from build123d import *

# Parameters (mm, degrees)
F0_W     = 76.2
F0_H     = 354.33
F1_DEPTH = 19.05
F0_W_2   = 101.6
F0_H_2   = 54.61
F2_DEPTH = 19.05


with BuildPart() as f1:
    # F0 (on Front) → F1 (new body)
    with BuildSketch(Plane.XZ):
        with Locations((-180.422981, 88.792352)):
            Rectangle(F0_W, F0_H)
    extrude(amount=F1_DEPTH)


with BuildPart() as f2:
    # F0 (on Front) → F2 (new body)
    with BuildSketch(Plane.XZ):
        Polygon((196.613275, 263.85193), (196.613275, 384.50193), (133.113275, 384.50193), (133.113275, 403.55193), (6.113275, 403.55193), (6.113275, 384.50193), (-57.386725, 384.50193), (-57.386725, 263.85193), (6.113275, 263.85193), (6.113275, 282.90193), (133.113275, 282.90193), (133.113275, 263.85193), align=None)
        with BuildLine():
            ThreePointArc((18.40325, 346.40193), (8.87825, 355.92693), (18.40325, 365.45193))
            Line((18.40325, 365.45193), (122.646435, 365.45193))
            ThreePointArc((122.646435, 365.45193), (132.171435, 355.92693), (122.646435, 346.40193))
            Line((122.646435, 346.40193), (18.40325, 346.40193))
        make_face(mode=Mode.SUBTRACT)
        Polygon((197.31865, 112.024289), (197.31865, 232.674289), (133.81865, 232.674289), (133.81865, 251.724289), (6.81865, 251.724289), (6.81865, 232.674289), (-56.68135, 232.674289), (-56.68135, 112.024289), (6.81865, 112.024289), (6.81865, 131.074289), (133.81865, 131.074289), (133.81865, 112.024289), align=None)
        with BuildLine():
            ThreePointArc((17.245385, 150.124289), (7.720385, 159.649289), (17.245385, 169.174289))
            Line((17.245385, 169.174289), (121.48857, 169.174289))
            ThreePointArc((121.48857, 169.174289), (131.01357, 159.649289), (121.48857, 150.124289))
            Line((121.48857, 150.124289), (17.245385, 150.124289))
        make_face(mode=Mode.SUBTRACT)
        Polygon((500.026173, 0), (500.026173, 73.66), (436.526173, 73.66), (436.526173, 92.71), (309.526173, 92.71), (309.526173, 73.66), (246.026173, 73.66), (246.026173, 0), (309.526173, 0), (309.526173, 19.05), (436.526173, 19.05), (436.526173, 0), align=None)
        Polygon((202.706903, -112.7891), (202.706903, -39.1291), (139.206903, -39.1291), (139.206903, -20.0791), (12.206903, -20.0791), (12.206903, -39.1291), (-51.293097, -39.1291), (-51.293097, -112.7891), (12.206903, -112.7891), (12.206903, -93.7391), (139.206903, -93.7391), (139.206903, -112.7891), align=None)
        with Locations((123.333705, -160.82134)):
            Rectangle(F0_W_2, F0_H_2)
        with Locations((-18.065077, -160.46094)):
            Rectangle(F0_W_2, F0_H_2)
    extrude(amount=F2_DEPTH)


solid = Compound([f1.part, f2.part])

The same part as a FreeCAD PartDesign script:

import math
import FreeCAD as App
import Part
import Sketcher
Q = App.Units.Quantity

doc = App.newDocument("Part")
body = doc.addObject("PartDesign::Body", "Body")

# Sketch on XZ plane
sketch1 = body.newObject("Sketcher::SketchObject", "Sketch")
sketch1.AttachmentSupport = (doc.getObject("XZ_Plane"), [""])
sketch1.MapMode = "FlatFace"
sketch1.addGeometry(Part.LineSegment(App.Vector(-219, 266, 0), App.Vector(-219, -88, 0)), False)
sketch1.addGeometry(Part.LineSegment(App.Vector(-219, -88, 0), App.Vector(-142, -88, 0)), False)
sketch1.addGeometry(Part.LineSegment(App.Vector(-142, -88, 0), App.Vector(-142, 266, 0)), False)
sketch1.addGeometry(Part.LineSegment(App.Vector(-142, 266, 0), App.Vector(-219, 266, 0)), False)
sketch1.addConstraint(Sketcher.Constraint("Coincident", 0, 2, 1, 1))
sketch1.addConstraint(Sketcher.Constraint("Coincident", 1, 2, 2, 1))
sketch1.addConstraint(Sketcher.Constraint("Coincident", 2, 2, 3, 1))
sketch1.addConstraint(Sketcher.Constraint("Coincident", 3, 2, 0, 1))
sketch1.addConstraint(Sketcher.Constraint("Vertical", 0))
sketch1.addConstraint(Sketcher.Constraint("Horizontal", 1))
sketch1.addConstraint(Sketcher.Constraint("Vertical", 2))
sketch1.addConstraint(Sketcher.Constraint("Horizontal", 3))
sketch1.addConstraint(Sketcher.Constraint("DistanceX", 1, 1, 1, 2, Q("3 in")))
sketch1.addConstraint(Sketcher.Constraint("DistanceY", 0, 2, 0, 1, Q("13.95 in")))
sketch1.addConstraint(Sketcher.Constraint("DistanceX", 0, 2, -1, 1, 218.522981))
sketch1.addConstraint(Sketcher.Constraint("DistanceY", 0, 2, -1, 1, 88.372648))
pad1 = body.newObject("PartDesign::Pad", "Pad")
pad1.Profile = sketch1
pad1.Length = Q("0.75 in")
body2 = doc.addObject("PartDesign::Body", "Body001")
body2.AllowCompound = True

# Sketch on XZ plane
sketch2 = body2.newObject("Sketcher::SketchObject", "Sketch001")
sketch2.AttachmentSupport = (doc.getObject("XZ_Plane001"), [""])
sketch2.MapMode = "FlatFace"
sketch2.addGeometry(Part.LineSegment(App.Vector(197, 264, 0), App.Vector(197, 385, 0)), False)
sketch2.addGeometry(Part.LineSegment(App.Vector(197, 385, 0), App.Vector(133, 385, 0)), False)
sketch2.addGeometry(Part.LineSegment(App.Vector(133, 385, 0), App.Vector(133, 404, 0)), False)
sketch2.addGeometry(Part.LineSegment(App.Vector(133, 404, 0), App.Vector(6, 404, 0)), False)
sketch2.addGeometry(Part.LineSegment(App.Vector(6, 404, 0), App.Vector(6, 385, 0)), False)
sketch2.addGeometry(Part.LineSegment(App.Vector(6, 385, 0), App.Vector(-57, 385, 0)), False)
sketch2.addGeometry(Part.LineSegment(App.Vector(-57, 385, 0), App.Vector(-57, 264, 0)), False)
sketch2.addGeometry(Part.LineSegment(App.Vector(-57, 264, 0), App.Vector(6, 264, 0)), False)
sketch2.addGeometry(Part.LineSegment(App.Vector(6, 264, 0), App.Vector(6, 283, 0)), False)
sketch2.addGeometry(Part.LineSegment(App.Vector(6, 283, 0), App.Vector(133, 283, 0)), False)
sketch2.addGeometry(Part.LineSegment(App.Vector(133, 283, 0), App.Vector(133, 264, 0)), False)
sketch2.addGeometry(Part.LineSegment(App.Vector(133, 264, 0), App.Vector(197, 264, 0)), False)
sketch2.addGeometry(Part.LineSegment(App.Vector(123, 346, 0), App.Vector(18, 346, 0)), False)
sketch2.addGeometry(Part.ArcOfCircle(Part.Circle(App.Vector(18, 356, 0), App.Vector(0, 0, 1), 10), math.radians(90), math.radians(270)), False)
sketch2.addGeometry(Part.LineSegment(App.Vector(18, 365, 0), App.Vector(123, 365, 0)), False)
sketch2.addGeometry(Part.ArcOfCircle(Part.Circle(App.Vector(123, 356, 0), App.Vector(0, 0, 1), 10), math.radians(-90), math.radians(90)), False)
sketch2.addGeometry(Part.LineSegment(App.Vector(197, 112, 0), App.Vector(197, 233, 0)), False)
sketch2.addGeometry(Part.LineSegment(App.Vector(197, 233, 0), App.Vector(134, 233, 0)), False)
sketch2.addGeometry(Part.LineSegment(App.Vector(134, 233, 0), App.Vector(134, 252, 0)), False)
sketch2.addGeometry(Part.LineSegment(App.Vector(134, 252, 0), App.Vector(7, 252, 0)), False)
sketch2.addGeometry(Part.LineSegment(App.Vector(7, 252, 0), App.Vector(7, 233, 0)), False)
sketch2.addGeometry(Part.LineSegment(App.Vector(7, 233, 0), App.Vector(-57, 233, 0)), False)
sketch2.addGeometry(Part.LineSegment(App.Vector(-57, 233, 0), App.Vector(-57, 112, 0)), False)
sketch2.addGeometry(Part.LineSegment(App.Vector(-57, 112, 0), App.Vector(7, 112, 0)), False)
sketch2.addGeometry(Part.LineSegment(App.Vector(7, 112, 0), App.Vector(7, 131, 0)), False)
sketch2.addGeometry(Part.LineSegment(App.Vector(7, 131, 0), App.Vector(134, 131, 0)), False)
sketch2.addGeometry(Part.LineSegment(App.Vector(134, 131, 0), App.Vector(134, 112, 0)), False)
sketch2.addGeometry(Part.LineSegment(App.Vector(134, 112, 0), App.Vector(197, 112, 0)), False)
sketch2.addGeometry(Part.LineSegment(App.Vector(121, 150, 0), App.Vector(17, 150, 0)), False)
sketch2.addGeometry(Part.ArcOfCircle(Part.Circle(App.Vector(17, 160, 0), App.Vector(0, 0, 1), 10), math.radians(90), math.radians(270)), False)
sketch2.addGeometry(Part.LineSegment(App.Vector(17, 169, 0), App.Vector(121, 169, 0)), False)
sketch2.addGeometry(Part.ArcOfCircle(Part.Circle(App.Vector(121, 160, 0), App.Vector(0, 0, 1), 10), math.radians(-90), math.radians(90)), False)
sketch2.addGeometry(Part.LineSegment(App.Vector(500, 0, 0), App.Vector(500, 74, 0)), False)
sketch2.addGeometry(Part.LineSegment(App.Vector(500, 74, 0), App.Vector(437, 74, 0)), False)
sketch2.addGeometry(Part.LineSegment(App.Vector(437, 74, 0), App.Vector(437, 93, 0)), False)
sketch2.addGeometry(Part.LineSegment(App.Vector(437, 93, 0), App.Vector(310, 93, 0)), False)
sketch2.addGeometry(Part.LineSegment(App.Vector(310, 93, 0), App.Vector(310, 74, 0)), False)
sketch2.addGeometry(Part.LineSegment(App.Vector(310, 74, 0), App.Vector(246, 74, 0)), False)
sketch2.addGeometry(Part.LineSegment(App.Vector(246, 74, 0), App.Vector(246, 0, 0)), False)
sketch2.addGeometry(Part.LineSegment(App.Vector(246, 0, 0), App.Vector(310, 0, 0)), False)
sketch2.addGeometry(Part.LineSegment(App.Vector(310, 0, 0), App.Vector(310, 19, 0)), False)
sketch2.addGeometry(Part.LineSegment(App.Vector(310, 19, 0), App.Vector(437, 19, 0)), False)
sketch2.addGeometry(Part.LineSegment(App.Vector(437, 19, 0), App.Vector(437, 0, 0)), False)
sketch2.addGeometry(Part.LineSegment(App.Vector(437, 0, 0), App.Vector(500, 0, 0)), False)
sketch2.addGeometry(Part.LineSegment(App.Vector(203, -113, 0), App.Vector(203, -39, 0)), False)
sketch2.addGeometry(Part.LineSegment(App.Vector(203, -39, 0), App.Vector(139, -39, 0)), False)
sketch2.addGeometry(Part.LineSegment(App.Vector(139, -39, 0), App.Vector(139, -20, 0)), False)
sketch2.addGeometry(Part.LineSegment(App.Vector(139, -20, 0), App.Vector(12, -20, 0)), False)
sketch2.addGeometry(Part.LineSegment(App.Vector(12, -20, 0), App.Vector(12, -39, 0)), False)
sketch2.addGeometry(Part.LineSegment(App.Vector(12, -39, 0), App.Vector(-51, -39, 0)), False)
sketch2.addGeometry(Part.LineSegment(App.Vector(-51, -39, 0), App.Vector(-51, -113, 0)), False)
sketch2.addGeometry(Part.LineSegment(App.Vector(-51, -113, 0), App.Vector(12, -113, 0)), False)
sketch2.addGeometry(Part.LineSegment(App.Vector(12, -113, 0), App.Vector(12, -94, 0)), False)
sketch2.addGeometry(Part.LineSegment(App.Vector(12, -94, 0), App.Vector(139, -94, 0)), False)
sketch2.addGeometry(Part.LineSegment(App.Vector(139, -94, 0), App.Vector(139, -113, 0)), False)
sketch2.addGeometry(Part.LineSegment(App.Vector(139, -113, 0), App.Vector(203, -113, 0)), False)
sketch2.addGeometry(Part.LineSegment(App.Vector(73, -134, 0), App.Vector(73, -188, 0)), False)
sketch2.addGeometry(Part.LineSegment(App.Vector(73, -188, 0), App.Vector(174, -188, 0)), False)
sketch2.addGeometry(Part.LineSegment(App.Vector(174, -188, 0), App.Vector(174, -134, 0)), False)
sketch2.addGeometry(Part.LineSegment(App.Vector(174, -134, 0), App.Vector(73, -134, 0)), False)
sketch2.addGeometry(Part.LineSegment(App.Vector(-69, -133, 0), App.Vector(-69, -188, 0)), False)
sketch2.addGeometry(Part.LineSegment(App.Vector(-69, -188, 0), App.Vector(33, -188, 0)), False)
sketch2.addGeometry(Part.LineSegment(App.Vector(33, -188, 0), App.Vector(33, -133, 0)), False)
sketch2.addGeometry(Part.LineSegment(App.Vector(33, -133, 0), App.Vector(-69, -133, 0)), False)
sketch2.addConstraint(Sketcher.Constraint("Coincident", 0, 2, 1, 1))
sketch2.addConstraint(Sketcher.Constraint("Coincident", 1, 2, 2, 1))
sketch2.addConstraint(Sketcher.Constraint("Coincident", 2, 2, 3, 1))
sketch2.addConstraint(Sketcher.Constraint("Coincident", 3, 2, 4, 1))
sketch2.addConstraint(Sketcher.Constraint("Coincident", 4, 2, 5, 1))
sketch2.addConstraint(Sketcher.Constraint("Coincident", 5, 2, 6, 1))
sketch2.addConstraint(Sketcher.Constraint("Coincident", 6, 2, 7, 1))
sketch2.addConstraint(Sketcher.Constraint("Coincident", 7, 2, 8, 1))
sketch2.addConstraint(Sketcher.Constraint("Coincident", 8, 2, 9, 1))
sketch2.addConstraint(Sketcher.Constraint("Coincident", 9, 2, 10, 1))
sketch2.addConstraint(Sketcher.Constraint("Coincident", 10, 2, 11, 1))
sketch2.addConstraint(Sketcher.Constraint("Coincident", 11, 2, 0, 1))
sketch2.addConstraint(Sketcher.Constraint("Tangent", 12, 2, 13, 2))
sketch2.addConstraint(Sketcher.Constraint("Tangent", 13, 1, 14, 1))
sketch2.addConstraint(Sketcher.Constraint("Tangent", 14, 2, 15, 2))
sketch2.addConstraint(Sketcher.Constraint("Tangent", 15, 1, 12, 1))
sketch2.addConstraint(Sketcher.Constraint("Coincident", 16, 2, 17, 1))
sketch2.addConstraint(Sketcher.Constraint("Coincident", 17, 2, 18, 1))
sketch2.addConstraint(Sketcher.Constraint("Coincident", 18, 2, 19, 1))
sketch2.addConstraint(Sketcher.Constraint("Coincident", 19, 2, 20, 1))
sketch2.addConstraint(Sketcher.Constraint("Coincident", 20, 2, 21, 1))
sketch2.addConstraint(Sketcher.Constraint("Coincident", 21, 2, 22, 1))
sketch2.addConstraint(Sketcher.Constraint("Coincident", 22, 2, 23, 1))
sketch2.addConstraint(Sketcher.Constraint("Coincident", 23, 2, 24, 1))
sketch2.addConstraint(Sketcher.Constraint("Coincident", 24, 2, 25, 1))
sketch2.addConstraint(Sketcher.Constraint("Coincident", 25, 2, 26, 1))
sketch2.addConstraint(Sketcher.Constraint("Coincident", 26, 2, 27, 1))
sketch2.addConstraint(Sketcher.Constraint("Coincident", 27, 2, 16, 1))
sketch2.addConstraint(Sketcher.Constraint("Tangent", 28, 2, 29, 2))
sketch2.addConstraint(Sketcher.Constraint("Tangent", 29, 1, 30, 1))
sketch2.addConstraint(Sketcher.Constraint("Tangent", 30, 2, 31, 2))
sketch2.addConstraint(Sketcher.Constraint("Tangent", 31, 1, 28, 1))
sketch2.addConstraint(Sketcher.Constraint("Coincident", 32, 2, 33, 1))
sketch2.addConstraint(Sketcher.Constraint("Coincident", 33, 2, 34, 1))
sketch2.addConstraint(Sketcher.Constraint("Coincident", 34, 2, 35, 1))
sketch2.addConstraint(Sketcher.Constraint("Coincident", 35, 2, 36, 1))
sketch2.addConstraint(Sketcher.Constraint("Coincident", 36, 2, 37, 1))
sketch2.addConstraint(Sketcher.Constraint("Coincident", 37, 2, 38, 1))
sketch2.addConstraint(Sketcher.Constraint("Coincident", 38, 2, 39, 1))
sketch2.addConstraint(Sketcher.Constraint("Coincident", 39, 2, 40, 1))
sketch2.addConstraint(Sketcher.Constraint("Coincident", 40, 2, 41, 1))
sketch2.addConstraint(Sketcher.Constraint("Coincident", 41, 2, 42, 1))
sketch2.addConstraint(Sketcher.Constraint("Coincident", 42, 2, 43, 1))
sketch2.addConstraint(Sketcher.Constraint("Coincident", 43, 2, 32, 1))
sketch2.addConstraint(Sketcher.Constraint("Coincident", 44, 2, 45, 1))
sketch2.addConstraint(Sketcher.Constraint("Coincident", 45, 2, 46, 1))
sketch2.addConstraint(Sketcher.Constraint("Coincident", 46, 2, 47, 1))
sketch2.addConstraint(Sketcher.Constraint("Coincident", 47, 2, 48, 1))
sketch2.addConstraint(Sketcher.Constraint("Coincident", 48, 2, 49, 1))
sketch2.addConstraint(Sketcher.Constraint("Coincident", 49, 2, 50, 1))
sketch2.addConstraint(Sketcher.Constraint("Coincident", 50, 2, 51, 1))
sketch2.addConstraint(Sketcher.Constraint("Coincident", 51, 2, 52, 1))
sketch2.addConstraint(Sketcher.Constraint("Coincident", 52, 2, 53, 1))
sketch2.addConstraint(Sketcher.Constraint("Coincident", 53, 2, 54, 1))
sketch2.addConstraint(Sketcher.Constraint("Coincident", 54, 2, 55, 1))
sketch2.addConstraint(Sketcher.Constraint("Coincident", 55, 2, 44, 1))
sketch2.addConstraint(Sketcher.Constraint("Coincident", 56, 2, 57, 1))
sketch2.addConstraint(Sketcher.Constraint("Coincident", 57, 2, 58, 1))
sketch2.addConstraint(Sketcher.Constraint("Coincident", 58, 2, 59, 1))
sketch2.addConstraint(Sketcher.Constraint("Coincident", 59, 2, 56, 1))
sketch2.addConstraint(Sketcher.Constraint("Coincident", 60, 2, 61, 1))
sketch2.addConstraint(Sketcher.Constraint("Coincident", 61, 2, 62, 1))
sketch2.addConstraint(Sketcher.Constraint("Coincident", 62, 2, 63, 1))
sketch2.addConstraint(Sketcher.Constraint("Coincident", 63, 2, 60, 1))
sketch2.addConstraint(Sketcher.Constraint("Vertical", 0))
sketch2.addConstraint(Sketcher.Constraint("Horizontal", 1))
sketch2.addConstraint(Sketcher.Constraint("Vertical", 2))
sketch2.addConstraint(Sketcher.Constraint("Horizontal", 3))
sketch2.addConstraint(Sketcher.Constraint("Vertical", 4))
sketch2.addConstraint(Sketcher.Constraint("Horizontal", 5))
sketch2.addConstraint(Sketcher.Constraint("Vertical", 6))
sketch2.addConstraint(Sketcher.Constraint("Horizontal", 7))
sketch2.addConstraint(Sketcher.Constraint("Vertical", 8))
sketch2.addConstraint(Sketcher.Constraint("Horizontal", 9))
sketch2.addConstraint(Sketcher.Constraint("Vertical", 10))
sketch2.addConstraint(Sketcher.Constraint("Horizontal", 11))
sketch2.addConstraint(Sketcher.Constraint("Horizontal", 12))
sketch2.addConstraint(Sketcher.Constraint("Horizontal", 14))
sketch2.addConstraint(Sketcher.Constraint("Vertical", 16))
sketch2.addConstraint(Sketcher.Constraint("Horizontal", 17))
sketch2.addConstraint(Sketcher.Constraint("Vertical", 18))
sketch2.addConstraint(Sketcher.Constraint("Horizontal", 19))
sketch2.addConstraint(Sketcher.Constraint("Vertical", 20))
sketch2.addConstraint(Sketcher.Constraint("Horizontal", 21))
sketch2.addConstraint(Sketcher.Constraint("Vertical", 22))
sketch2.addConstraint(Sketcher.Constraint("Horizontal", 23))
sketch2.addConstraint(Sketcher.Constraint("Vertical", 24))
sketch2.addConstraint(Sketcher.Constraint("Horizontal", 25))
sketch2.addConstraint(Sketcher.Constraint("Vertical", 26))
sketch2.addConstraint(Sketcher.Constraint("Horizontal", 27))
sketch2.addConstraint(Sketcher.Constraint("Horizontal", 28))
sketch2.addConstraint(Sketcher.Constraint("Horizontal", 30))
sketch2.addConstraint(Sketcher.Constraint("Vertical", 32))
sketch2.addConstraint(Sketcher.Constraint("Horizontal", 33))
sketch2.addConstraint(Sketcher.Constraint("Vertical", 34))
sketch2.addConstraint(Sketcher.Constraint("Horizontal", 35))
sketch2.addConstraint(Sketcher.Constraint("Vertical", 36))
sketch2.addConstraint(Sketcher.Constraint("Horizontal", 37))
sketch2.addConstraint(Sketcher.Constraint("Vertical", 38))
sketch2.addConstraint(Sketcher.Constraint("Horizontal", 39))
sketch2.addConstraint(Sketcher.Constraint("Vertical", 40))
sketch2.addConstraint(Sketcher.Constraint("Horizontal", 41))
sketch2.addConstraint(Sketcher.Constraint("Vertical", 42))
sketch2.addConstraint(Sketcher.Constraint("Horizontal", 43))
sketch2.addConstraint(Sketcher.Constraint("Vertical", 44))
sketch2.addConstraint(Sketcher.Constraint("Horizontal", 45))
sketch2.addConstraint(Sketcher.Constraint("Vertical", 46))
sketch2.addConstraint(Sketcher.Constraint("Horizontal", 47))
sketch2.addConstraint(Sketcher.Constraint("Vertical", 48))
sketch2.addConstraint(Sketcher.Constraint("Horizontal", 49))
sketch2.addConstraint(Sketcher.Constraint("Vertical", 50))
sketch2.addConstraint(Sketcher.Constraint("Horizontal", 51))
sketch2.addConstraint(Sketcher.Constraint("Vertical", 52))
sketch2.addConstraint(Sketcher.Constraint("Horizontal", 53))
sketch2.addConstraint(Sketcher.Constraint("Vertical", 54))
sketch2.addConstraint(Sketcher.Constraint("Horizontal", 55))
sketch2.addConstraint(Sketcher.Constraint("Vertical", 56))
sketch2.addConstraint(Sketcher.Constraint("Horizontal", 57))
sketch2.addConstraint(Sketcher.Constraint("Vertical", 58))
sketch2.addConstraint(Sketcher.Constraint("Horizontal", 59))
sketch2.addConstraint(Sketcher.Constraint("Vertical", 60))
sketch2.addConstraint(Sketcher.Constraint("Horizontal", 61))
sketch2.addConstraint(Sketcher.Constraint("Vertical", 62))
sketch2.addConstraint(Sketcher.Constraint("Horizontal", 63))
sketch2.addConstraint(Sketcher.Constraint("Equal", 15, 29))
sketch2.addConstraint(Sketcher.Constraint("PointOnObject", 38, 2, -1))
sketch2.addConstraint(Sketcher.Constraint("PointOnObject", 42, 2, -1))
sketch2.addConstraint(Sketcher.Constraint("Horizontal", 1, 2, 4, 2))
sketch2.addConstraint(Sketcher.Constraint("Horizontal", 7, 2, 10, 2))
sketch2.addConstraint(Sketcher.Constraint("Horizontal", 17, 2, 20, 2))
sketch2.addConstraint(Sketcher.Constraint("Horizontal", 23, 2, 26, 2))
sketch2.addConstraint(Sketcher.Constraint("Horizontal", 33, 2, 36, 2))
sketch2.addConstraint(Sketcher.Constraint("Horizontal", 45, 2, 48, 2))
sketch2.addConstraint(Sketcher.Constraint("Horizontal", 51, 2, 54, 2))
sketch2.addConstraint(Sketcher.Constraint("Vertical", 4, 2, 7, 2))
sketch2.addConstraint(Sketcher.Constraint("Vertical", 2, 2, 9, 2))
sketch2.addConstraint(Sketcher.Constraint("Vertical", 20, 2, 23, 2))
sketch2.addConstraint(Sketcher.Constraint("Vertical", 18, 2, 25, 2))
sketch2.addConstraint(Sketcher.Constraint("Vertical", 36, 2, 39, 2))
sketch2.addConstraint(Sketcher.Constraint("Vertical", 34, 2, 41, 2))
sketch2.addConstraint(Sketcher.Constraint("Vertical", 48, 2, 51, 2))
sketch2.addConstraint(Sketcher.Constraint("Vertical", 46, 2, 53, 2))
sketch2.addConstraint(Sketcher.Constraint("Equal", 1, 5))
sketch2.addConstraint(Sketcher.Constraint("Equal", 11, 17))
sketch2.addConstraint(Sketcher.Constraint("Equal", 9, 19))
sketch2.addConstraint(Sketcher.Constraint("Equal", 17, 21))
sketch2.addConstraint(Sketcher.Constraint("Equal", 14, 28))
sketch2.addConstraint(Sketcher.Constraint("Equal", 27, 33))
sketch2.addConstraint(Sketcher.Constraint("Equal", 25, 35))
sketch2.addConstraint(Sketcher.Constraint("Equal", 33, 37))
sketch2.addConstraint(Sketcher.Constraint("Equal", 43, 45))
sketch2.addConstraint(Sketcher.Constraint("Equal", 41, 47))
sketch2.addConstraint(Sketcher.Constraint("Equal", 45, 49))
sketch2.addConstraint(Sketcher.Constraint("Equal", 59, 61))
sketch2.addConstraint(Sketcher.Constraint("Equal", 4, 8))
sketch2.addConstraint(Sketcher.Constraint("Equal", 6, 16))
sketch2.addConstraint(Sketcher.Constraint("Equal", 10, 18))
sketch2.addConstraint(Sketcher.Constraint("Equal", 20, 24))
sketch2.addConstraint(Sketcher.Constraint("Equal", 26, 34))
sketch2.addConstraint(Sketcher.Constraint("Equal", 36, 40))
sketch2.addConstraint(Sketcher.Constraint("Equal", 38, 44))
sketch2.addConstraint(Sketcher.Constraint("Equal", 42, 46))
sketch2.addConstraint(Sketcher.Constraint("Equal", 48, 52))
sketch2.addConstraint(Sketcher.Constraint("Equal", 58, 60))
sketch2.addConstraint(Sketcher.Constraint("DistanceX", 3, 2, 3, 1, Q("5 in")))
sketch2.addConstraint(Sketcher.Constraint("DistanceX", 57, 1, 57, 2, Q("4 in")))
sketch2.addConstraint(Sketcher.Constraint("DistanceX", 1, 2, 1, 1, Q("2.5 in")))
sketch2.addConstraint(Sketcher.Constraint("DistanceY", 32, 1, 32, 2, Q("2.9 in")))
sketch2.addConstraint(Sketcher.Constraint("Radius", 13, Q("0.375 in")))
sketch2.addConstraint(Sketcher.Constraint("DistanceY", 0, 1, 0, 2, Q("4.75 in")))
sketch2.addConstraint(Sketcher.Constraint("DistanceY", 2, 1, 2, 2, Q("0.75 in")))
sketch2.addConstraint(Sketcher.Constraint("DistanceY", 56, 2, 56, 1, Q("2.15 in")))
sketch2.addConstraint(Sketcher.Constraint("DistanceX", -1, 1, 15, 3, Q("4.8285998 in")))
sketch2.addConstraint(Sketcher.Constraint("DistanceY", 44, 2, -1, 1, 39.1291))
sketch2.addConstraint(Sketcher.Constraint("DistanceX", 12, 2, 12, 1, 104.243185))
sketch2.addConstraint(Sketcher.Constraint("DistanceY", -1, 1, 13, 3, 355.92693))
sketch2.addConstraint(Sketcher.Constraint("DistanceY", -1, 1, 29, 3, 159.649289))
sketch2.addConstraint(Sketcher.Constraint("DistanceX", -1, 1, 31, 3, 121.48857))
sketch2.addConstraint(Sketcher.Constraint("DistanceY", -1, 1, 0, 2, 384.50193))
sketch2.addConstraint(Sketcher.Constraint("DistanceX", -1, 1, 16, 2, 197.31865))
sketch2.addConstraint(Sketcher.Constraint("DistanceY", -1, 1, 16, 2, 232.674289))
sketch2.addConstraint(Sketcher.Constraint("DistanceY", 56, 2, -1, 1, 188.12634))
sketch2.addConstraint(Sketcher.Constraint("DistanceY", 60, 2, -1, 1, 187.76594))
sketch2.addConstraint(Sketcher.Constraint("DistanceX", -1, 1, 0, 2, 196.613275))
sketch2.addConstraint(Sketcher.Constraint("DistanceX", -1, 1, 32, 2, 500.026173))
sketch2.addConstraint(Sketcher.Constraint("DistanceX", -1, 1, 44, 2, 202.706903))
sketch2.addConstraint(Sketcher.Constraint("DistanceX", -1, 1, 56, 2, 72.533705))
sketch2.addConstraint(Sketcher.Constraint("DistanceX", 60, 2, -1, 1, 68.865077))
pad2 = body2.newObject("PartDesign::Pad", "Pad001")
pad2.Profile = sketch2
pad2.Length = Q("0.75 in")

doc.recompute()
